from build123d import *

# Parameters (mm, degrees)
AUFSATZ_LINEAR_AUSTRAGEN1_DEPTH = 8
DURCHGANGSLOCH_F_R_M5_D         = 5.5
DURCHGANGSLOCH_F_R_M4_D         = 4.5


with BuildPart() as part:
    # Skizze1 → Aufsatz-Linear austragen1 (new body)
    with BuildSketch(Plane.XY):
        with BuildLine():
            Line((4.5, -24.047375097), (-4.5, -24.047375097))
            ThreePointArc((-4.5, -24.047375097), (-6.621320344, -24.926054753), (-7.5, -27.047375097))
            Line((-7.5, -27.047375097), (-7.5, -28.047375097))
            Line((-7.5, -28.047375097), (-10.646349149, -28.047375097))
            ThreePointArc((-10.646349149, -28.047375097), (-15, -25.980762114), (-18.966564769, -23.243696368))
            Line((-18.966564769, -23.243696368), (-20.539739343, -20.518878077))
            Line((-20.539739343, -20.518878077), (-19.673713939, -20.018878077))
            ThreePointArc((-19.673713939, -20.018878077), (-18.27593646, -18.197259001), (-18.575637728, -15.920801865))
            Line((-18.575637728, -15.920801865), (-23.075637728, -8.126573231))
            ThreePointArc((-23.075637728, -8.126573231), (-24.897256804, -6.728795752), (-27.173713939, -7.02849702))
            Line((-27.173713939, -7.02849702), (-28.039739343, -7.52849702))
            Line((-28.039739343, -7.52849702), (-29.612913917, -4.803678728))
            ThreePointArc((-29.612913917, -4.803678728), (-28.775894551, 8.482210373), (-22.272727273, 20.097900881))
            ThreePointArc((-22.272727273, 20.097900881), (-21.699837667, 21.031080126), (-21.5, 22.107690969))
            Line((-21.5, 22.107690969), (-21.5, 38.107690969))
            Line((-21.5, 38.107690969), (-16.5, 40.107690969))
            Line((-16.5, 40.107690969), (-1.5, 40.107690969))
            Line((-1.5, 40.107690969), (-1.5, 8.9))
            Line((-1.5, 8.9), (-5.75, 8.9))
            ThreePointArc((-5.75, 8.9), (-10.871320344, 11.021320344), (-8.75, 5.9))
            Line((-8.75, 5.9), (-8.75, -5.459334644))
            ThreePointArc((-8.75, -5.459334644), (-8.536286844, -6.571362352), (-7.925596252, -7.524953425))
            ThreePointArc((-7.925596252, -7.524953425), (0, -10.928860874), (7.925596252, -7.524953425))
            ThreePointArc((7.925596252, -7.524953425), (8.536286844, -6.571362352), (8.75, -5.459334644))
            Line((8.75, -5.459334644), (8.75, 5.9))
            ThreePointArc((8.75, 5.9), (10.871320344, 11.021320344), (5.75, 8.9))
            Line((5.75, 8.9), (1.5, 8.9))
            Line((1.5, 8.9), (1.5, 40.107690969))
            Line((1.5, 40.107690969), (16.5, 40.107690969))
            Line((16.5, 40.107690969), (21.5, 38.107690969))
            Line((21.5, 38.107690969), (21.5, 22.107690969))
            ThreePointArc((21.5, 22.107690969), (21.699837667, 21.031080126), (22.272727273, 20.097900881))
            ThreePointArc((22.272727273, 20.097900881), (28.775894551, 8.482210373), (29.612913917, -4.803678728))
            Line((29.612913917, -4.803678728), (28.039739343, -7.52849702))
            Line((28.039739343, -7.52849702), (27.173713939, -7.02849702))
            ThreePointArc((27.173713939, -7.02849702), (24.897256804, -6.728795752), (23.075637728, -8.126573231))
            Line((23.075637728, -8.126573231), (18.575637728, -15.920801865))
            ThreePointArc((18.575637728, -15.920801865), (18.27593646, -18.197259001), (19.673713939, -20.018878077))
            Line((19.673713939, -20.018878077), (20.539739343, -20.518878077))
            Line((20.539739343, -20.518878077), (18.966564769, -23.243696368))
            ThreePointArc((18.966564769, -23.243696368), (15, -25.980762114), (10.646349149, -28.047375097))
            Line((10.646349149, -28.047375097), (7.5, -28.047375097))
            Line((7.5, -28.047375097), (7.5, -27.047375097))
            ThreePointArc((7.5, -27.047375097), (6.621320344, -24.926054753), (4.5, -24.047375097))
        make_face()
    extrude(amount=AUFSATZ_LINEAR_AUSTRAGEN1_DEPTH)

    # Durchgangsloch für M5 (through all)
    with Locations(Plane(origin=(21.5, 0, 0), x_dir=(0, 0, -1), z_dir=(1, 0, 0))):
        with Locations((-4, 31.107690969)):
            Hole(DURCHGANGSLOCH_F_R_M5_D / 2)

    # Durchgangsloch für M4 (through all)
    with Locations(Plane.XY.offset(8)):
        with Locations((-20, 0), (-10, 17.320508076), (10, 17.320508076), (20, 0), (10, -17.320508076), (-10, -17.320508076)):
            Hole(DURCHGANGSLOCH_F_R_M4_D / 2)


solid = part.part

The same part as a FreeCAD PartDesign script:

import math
import FreeCAD as App
import Part
import Sketcher
Q = App.Units.Quantity

doc = App.newDocument("Part")
params = doc.addObject("Spreadsheet::Sheet", "Params")
for row, (alias, value) in enumerate([
    ("sketch1_radius", "3 mm"),
    ("sketch1_radius2", "30 mm"),
    ("sketch1_width", "9 mm"),
    ("sketch1_width2", "15 mm"),
    ("sketch1_height", "1 mm"),
    ("pad1_length", "8 mm"),
    ("sketch2_diameter", "5.5 mm"),
    ("hole_diameter", "5.5 mm"),
    ("sketch3_diameter", "4.5 mm"),
    ("hole2_diameter", "4.5 mm"),
], start=1):
    params.set(f"A{row}", alias)
    params.set(f"B{row}", "=" + value)
    params.setAlias(f"B{row}", alias)

body = doc.addObject("PartDesign::Body", "Body")

sketch1 = body.newObject("Sketcher::SketchObject", "Sketch")
sketch1.AttachmentSupport = (doc.getObject("XY_Plane"), [""])
sketch1.MapMode = "FlatFace"
sketch1.addGeometry([
    Part.LineSegment(App.Vector(-4.5, -24, 0), App.Vector(4.5, -24, 0)),
    Part.ArcOfCircle(Part.Circle(App.Vector(4.5, -27, 0), App.Vector(0, 0, 1), 3), math.radians(0), math.radians(90)),
    Part.LineSegment(App.Vector(7.5, -27, 0), App.Vector(7.5, -28, 0)),
    Part.LineSegment(App.Vector(7.5, -28, 0), App.Vector(10.6, -28, 0)),
    Part.ArcOfCircle(Part.Circle(App.Vector(0, 0, 0), App.Vector(0, 0, 1), 30), math.radians(-69.21), math.radians(-50.79)),
    Part.LineSegment(App.Vector(19, -23.2, 0), App.Vector(20.5, -20.5, 0)),
    Part.LineSegment(App.Vector(20.5, -20.5, 0), App.Vector(19.7, -20, 0)),
    Part.ArcOfCircle(Part.Circle(App.Vector(21.2, -17.4, 0), App.Vector(0, 0, 1), 3), math.radians(150), math.radians(240)),
    Part.LineSegment(App.Vector(18.6, -15.9, 0), App.Vector(23.1, -8.1, 0)),
    Part.ArcOfCircle(Part.Circle(App.Vector(25.7, -9.6, 0), App.Vector(0, 0, 1), 3), math.radians(60), math.radians(150)),
    Part.LineSegment(App.Vector(27.2, -7, 0), App.Vector(28, -7.5, 0)),
    Part.LineSegment(App.Vector(28, -7.5, 0), App.Vector(29.6, -4.8, 0)),
    Part.ArcOfCircle(Part.Circle(App.Vector(0, 0, 0), App.Vector(0, 0, 1), 30), math.radians(-9), math.radians(42)),
    Part.ArcOfCircle(Part.Circle(App.Vector(24.5, 22.1, 0), App.Vector(0, 0, 1), 3), math.radians(-180), math.radians(-138)),
    Part.LineSegment(App.Vector(21.5, 22.1, 0), App.Vector(21.5, 38.1, 0)),
    Part.LineSegment(App.Vector(21.5, 38.1, 0), App.Vector(16.5, 40.1, 0)),
    Part.LineSegment(App.Vector(16.5, 40.1, 0), App.Vector(1.5, 40.1, 0)),
    Part.LineSegment(App.Vector(1.5, 40.1, 0), App.Vector(1.5, 8.9, 0)),
    Part.LineSegment(App.Vector(1.5, 8.9, 0), App.Vector(5.8, 8.9, 0)),
    Part.ArcOfCircle(Part.Circle(App.Vector(8.8, 8.9, 0), App.Vector(0, 0, 1), 3), math.radians(-90), math.radians(180)),
    Part.LineSegment(App.Vector(8.8, 5.9, 0), App.Vector(8.8, -5.5, 0)),
    Part.ArcOfCircle(Part.Circle(App.Vector(5.8, -5.5, 0), App.Vector(0, 0, 1), 3), math.radians(-44), math.radians(0)),
    Part.ArcOfCircle(Part.Circle(App.Vector(0, 0, 0), App.Vector(0, 0, 1), 10.9), math.radians(-136), math.radians(-44)),
    Part.ArcOfCircle(Part.Circle(App.Vector(-5.8, -5.5, 0), App.Vector(0, 0, 1), 3), math.radians(180), math.radians(224)),
    Part.LineSegment(App.Vector(-8.8, -5.5, 0), App.Vector(-8.8, 5.9, 0)),
    Part.ArcOfCircle(Part.Circle(App.Vector(-8.8, 8.9, 0), App.Vector(0, 0, 1), 3), math.radians(0), math.radians(270)),
    Part.LineSegment(App.Vector(-5.8, 8.9, 0), App.Vector(-1.5, 8.9, 0)),
    Part.LineSegment(App.Vector(-1.5, 8.9, 0), App.Vector(-1.5, 40.1, 0)),
    Part.LineSegment(App.Vector(-1.5, 40.1, 0), App.Vector(-16.5, 40.1, 0)),
    Part.LineSegment(App.Vector(-16.5, 40.1, 0), App.Vector(-21.5, 38.1, 0)),
    Part.LineSegment(App.Vector(-21.5, 38.1, 0), App.Vector(-21.5, 22.1, 0)),
    Part.ArcOfCircle(Part.Circle(App.Vector(-24.5, 22.1, 0), App.Vector(0, 0, 1), 3), math.radians(-42), math.radians(0)),
    Part.ArcOfCircle(Part.Circle(App.Vector(0, 0, 0), App.Vector(0, 0, 1), 30), math.radians(138), math.radians(189)),
    Part.LineSegment(App.Vector(-29.6, -4.8, 0), App.Vector(-28, -7.5, 0)),
    Part.LineSegment(App.Vector(-28, -7.5, 0), App.Vector(-27.2, -7, 0)),
    Part.ArcOfCircle(Part.Circle(App.Vector(-25.7, -9.6, 0), App.Vector(0, 0, 1), 3), math.radians(30), math.radians(120)),
    Part.LineSegment(App.Vector(-23.1, -8.1, 0), App.Vector(-18.6, -15.9, 0)),
    Part.ArcOfCircle(Part.Circle(App.Vector(-21.2, -17.4, 0), App.Vector(0, 0, 1), 3), math.radians(-60), math.radians(30)),
    Part.LineSegment(App.Vector(-19.7, -20, 0), App.Vector(-20.5, -20.5, 0)),
    Part.LineSegment(App.Vector(-20.5, -20.5, 0), App.Vector(-19, -23.2, 0)),
    Part.ArcOfCircle(Part.Circle(App.Vector(0, 0, 0), App.Vector(0, 0, 1), 30), math.radians(-129.21), math.radians(-110.79)),
    Part.LineSegment(App.Vector(-10.6, -28, 0), App.Vector(-7.5, -28, 0)),
    Part.LineSegment(App.Vector(-7.5, -28, 0), App.Vector(-7.5, -27, 0)),
    Part.ArcOfCircle(Part.Circle(App.Vector(-4.5, -27, 0), App.Vector(0, 0, 1), 3), math.radians(90), math.radians(180)),
], False)
sketch1.addConstraint([
    Sketcher.Constraint("Tangent", 0, 2, 1, 2),
    Sketcher.Constraint("Tangent", 1, 1, 2, 1),
    Sketcher.Constraint("Coincident", 2, 2, 3, 1),
    Sketcher.Constraint("Coincident", 3, 2, 4, 1),
    Sketcher.Constraint("Coincident", 4, 2, 5, 1),
    Sketcher.Constraint("Coincident", 5, 2, 6, 1),
    Sketcher.Constraint("Tangent", 6, 2, 7, 2),
    Sketcher.Constraint("Tangent", 7, 1, 8, 1),
    Sketcher.Constraint("Tangent", 8, 2, 9, 2),
    Sketcher.Constraint("Tangent", 9, 1, 10, 1),
    Sketcher.Constraint("Coincident", 10, 2, 11, 1),
    Sketcher.Constraint("Coincident", 11, 2, 12, 1),
    Sketcher.Constraint("Tangent", 12, 2, 13, 2),
    Sketcher.Constraint("Tangent", 13, 1, 14, 1),
    Sketcher.Constraint("Coincident", 14, 2, 15, 1),
    Sketcher.Constraint("Coincident", 15, 2, 16, 1),
    Sketcher.Constraint("Coincident", 16, 2, 17, 1),
    Sketcher.Constraint("Coincident", 17, 2, 18, 1),
    Sketcher.Constraint("Coincident", 18, 2, 19, 2),
    Sketcher.Constraint("Coincident", 19, 1, 20, 1),
    Sketcher.Constraint("Tangent", 20, 2, 21, 2),
    Sketcher.Constraint("Tangent", 21, 1, 22, 2),
    Sketcher.Constraint("Tangent", 22, 1, 23, 2),
    Sketcher.Constraint("Tangent", 23, 1, 24, 1),
    Sketcher.Constraint("Coincident", 24, 2, 25, 2),
    Sketcher.Constraint("Coincident", 25, 1, 26, 1),
    Sketcher.Constraint("Coincident", 26, 2, 27, 1),
    Sketcher.Constraint("Coincident", 27, 2, 28, 1),
    Sketcher.Constraint("Coincident", 28, 2, 29, 1),
    Sketcher.Constraint("Coincident", 29, 2, 30, 1),
    Sketcher.Constraint("Tangent", 30, 2, 31, 2),
    Sketcher.Constraint("Tangent", 31, 1, 32, 1),
    Sketcher.Constraint("Coincident", 32, 2, 33, 1),
    Sketcher.Constraint("Coincident", 33, 2, 34, 1),
    Sketcher.Constraint("Tangent", 34, 2, 35, 2),
    Sketcher.Constraint("Tangent", 35, 1, 36, 1),
    Sketcher.Constraint("Tangent", 36, 2, 37, 2),
    Sketcher.Constraint("Tangent", 37, 1, 38, 1),
    Sketcher.Constraint("Coincident", 38, 2, 39, 1),
    Sketcher.Constraint("Coincident", 39, 2, 40, 1),
    Sketcher.Constraint("Coincident", 40, 2, 41, 1),
    Sketcher.Constraint("Coincident", 41, 2, 42, 1),
    Sketcher.Constraint("Tangent", 42, 2, 43, 2),
    Sketcher.Constraint("Tangent", 43, 1, 0, 1),
    Sketcher.Constraint("Horizontal", 0),
    Sketcher.Constraint("Vertical", 2),
    Sketcher.Constraint("Horizontal", 3),
    Sketcher.Constraint("Vertical", 14),
    Sketcher.Constraint("Horizontal", 16),
    Sketcher.Constraint("Vertical", 17),
    Sketcher.Constraint("Horizontal", 18),
    Sketcher.Constraint("Vertical", 20),
    Sketcher.Constraint("Vertical", 24),
    Sketcher.Constraint("Horizontal", 26),
    Sketcher.Constraint("Vertical", 27),
    Sketcher.Constraint("Horizontal", 28),
    Sketcher.Constraint("Vertical", 30),
    Sketcher.Constraint("Horizontal", 41),
    Sketcher.Constraint("Vertical", 42),
    Sketcher.Constraint("Coincident", 4, 3, -1, 1),
    Sketcher.Constraint("Coincident", 12, 3, -1, 1),
    Sketcher.Constraint("Coincident", 22, 3, -1, 1),
    Sketcher.Constraint("Coincident", 32, 3, -1, 1),
    Sketcher.Constraint("Coincident", 40, 3, -1, 1),
    Sketcher.Constraint("Equal", 1, 7),
    Sketcher.Constraint("Equal", 7, 9),
    Sketcher.Constraint("Equal", 4, 12),
    Sketcher.Constraint("Equal", 9, 13),
    Sketcher.Constraint("Equal", 13, 19),
    Sketcher.Constraint("Equal", 19, 21),
    Sketcher.Constraint("Equal", 21, 23),
    Sketcher.Constraint("Equal", 23, 25),
    Sketcher.Constraint("Equal", 25, 31),
    Sketcher.Constraint("Equal", 12, 32),
    Sketcher.Constraint("Equal", 31, 35),
    Sketcher.Constraint("Equal", 35, 37),
    Sketcher.Constraint("Equal", 32, 40),
    Sketcher.Constraint("Equal", 37, 43),
    Sketcher.Constraint("Symmetric", 19, 3, 25, 3, -2),
    Sketcher.Constraint("Symmetric", 9, 3, 35, 3, -2),
    Sketcher.Constraint("Symmetric", 7, 3, 37, 3, -2),
    Sketcher.Constraint("Symmetric", 17, 2, 26, 2, -2),
    Sketcher.Constraint("Symmetric", 15, 2, 28, 2, -2),
    Sketcher.Constraint("Symmetric", 14, 2, 29, 2, -2),
    Sketcher.Constraint("Symmetric", 10, 2, 33, 2, -2),
    Sketcher.Constraint("Symmetric", 5, 2, 38, 2, -2),
    Sketcher.Constraint("Symmetric", 2, 2, 41, 2, -2),
    Sketcher.Constraint("Perpendicular", 5, 6),
    Sketcher.Constraint("Perpendicular", 6, 8),
    Sketcher.Constraint("Perpendicular", 8, 10),
    Sketcher.Constraint("Perpendicular", 10, 11),
    Sketcher.Constraint("Perpendicular", 33, 34),
    Sketcher.Constraint("Perpendicular", 38, 39),
    Sketcher.Constraint("Horizontal", 21, 3, 23, 3),
    Sketcher.Constraint("Horizontal", 25, 3, 17, 2),
    Sketcher.Constraint("Vertical", 21, 3, 18, 2),
    Sketcher.Constraint("Equal", 6, 10),
    Sketcher.Constraint("Equal", 5, 11),
    Sketcher.Constraint("Radius", 1, Q("3 mm")),
    Sketcher.Constraint("Radius", 4, Q("30 mm")),
    Sketcher.Constraint("DistanceX", 0, 1, 0, 2, Q("9 mm")),
    Sketcher.Constraint("DistanceX", 16, 2, 16, 1, Q("15 mm")),
    Sketcher.Constraint("DistanceY", 2, 2, 2, 1, Q("1 mm")),
    Sketcher.Constraint("DistanceY", 14, 1, 14, 2, Q("16 mm")),
    Sketcher.Constraint("Angle", 5, Q("60 deg")),
    Sketcher.Constraint("Distance", 6, Q("1 mm")),
    Sketcher.Constraint("Distance", 8, Q("9 mm")),
    Sketcher.Constraint("DistanceX", 18, 1, 18, 2, Q("4.25 mm")),
    Sketcher.Constraint("DistanceX", -1, 1, 13, 3, Q("24.5 mm")),
    Sketcher.Constraint("DistanceY", -1, 1, 19, 3, Q("8.9 mm")),
    Sketcher.Constraint("DistanceX", -1, 1, 15, 2, Q("16.5 mm")),
    Sketcher.Constraint("Radius", 22, Q("10.928861 mm")),
    Sketcher.Constraint("DistanceX", 3, 1, 3, 2, Q("3.146349 mm")),
    Sketcher.Constraint("DistanceY", 17, 2, 17, 1, Q("31.207691 mm")),
    Sketcher.Constraint("DistanceY", 7, 3, -1, 1, Q("17.420802 mm")),
])
sketch1.setExpression("Constraints[98]", "Params.sketch1_radius")
sketch1.setExpression("Constraints[99]", "Params.sketch1_radius2")
sketch1.setExpression("Constraints[100]", "Params.sketch1_width")
sketch1.setExpression("Constraints[101]", "Params.sketch1_width2")
sketch1.setExpression("Constraints[102]", "Params.sketch1_height")
pad1 = body.newObject("PartDesign::Pad", "Pad")
pad1.Profile = sketch1
pad1.setExpression("Length", "Params.pad1_length")

sketch2 = body.newObject("Sketcher::SketchObject", "Sketch001")
sketch2.AttachmentSupport = (doc.getObject("YZ_Plane"), [""])
sketch2.MapMode = "FlatFace"
sketch2.AttachmentOffset = App.Placement(App.Vector(0, 0, 21.5), App.Rotation())
sketch2.addGeometry(Part.Circle(App.Vector(31.1, 4, 0), App.Vector(0, 0, 1), 2.8), False)
sketch2.addConstraint([
    Sketcher.Constraint("Diameter", 0, Q("5.5 mm")),
    Sketcher.Constraint("DistanceY", -1, 1, 0, 3, Q("4 mm")),
    Sketcher.Constraint("DistanceX", -1, 1, 0, 3, Q("31.107691 mm")),
])
sketch2.setExpression("Constraints[0]", "Params.sketch2_diameter")
doc.recompute()
hole = body.newObject("PartDesign::Hole", "Hole")
hole.Profile = sketch2
hole.ThreadType = "None"
hole.setExpression("Diameter", "Params.hole_diameter")
hole.DepthType = "ThroughAll"

sketch3 = body.newObject("Sketcher::SketchObject", "Sketch002")
sketch3.AttachmentSupport = (doc.getObject("XY_Plane"), [""])
sketch3.MapMode = "FlatFace"
sketch3.AttachmentOffset = App.Placement(App.Vector(0, 0, 8), App.Rotation())
sketch3.addGeometry([
    Part.Circle(App.Vector(-20, 0, 0), App.Vector(0, 0, 1), 2.2),
    Part.Circle(App.Vector(-10, 17.3, 0), App.Vector(0, 0, 1), 2.2),
    Part.Circle(App.Vector(10, 17.3, 0), App.Vector(0, 0, 1), 2.2),
    Part.Circle(App.Vector(20, 0, 0), App.Vector(0, 0, 1), 2.2),
    Part.Circle(App.Vector(10, -17.3, 0), App.Vector(0, 0, 1), 2.2),
    Part.Circle(App.Vector(-10, -17.3, 0), App.Vector(0, 0, 1), 2.2),
], False)
sketch3.addConstraint([
    Sketcher.Constraint("Equal", 0, 1),
    Sketcher.Constraint("Equal", 1, 2),
    Sketcher.Constraint("Equal", 2, 3),
    Sketcher.Constraint("Equal", 3, 4),
    Sketcher.Constraint("Equal", 4, 5),
    Sketcher.Constraint("Symmetric", 0, 3, 3, 3, -1, 1),
    Sketcher.Constraint("Symmetric", 1, 3, 4, 3, -1, 1),
    Sketcher.Constraint("Symmetric", 2, 3, 5, 3, -1, 1),
    Sketcher.Constraint("Symmetric", 1, 3, 2, 3, -2),
    Sketcher.Constraint("PointOnObject", 0, 3, -1),
    Sketcher.Constraint("Diameter", 0, Q("4.5 mm")),
    Sketcher.Constraint("DistanceX", 0, 3, -1, 1, Q("20 mm")),
    Sketcher.Constraint("DistanceX", 1, 3, -1, 1, Q("10 mm")),
    Sketcher.Constraint("DistanceY", -1, 1, 1, 3, Q("17.320508 mm")),
])
sketch3.setExpression("Constraints[10]", "Params.sketch3_diameter")
doc.recompute()
hole2 = body.newObject("PartDesign::Hole", "Hole001")
hole2.Profile = sketch3
hole2.ThreadType = "None"
hole2.setExpression("Diameter", "Params.hole2_diameter")
hole2.DepthType = "ThroughAll"

doc.recompute()
